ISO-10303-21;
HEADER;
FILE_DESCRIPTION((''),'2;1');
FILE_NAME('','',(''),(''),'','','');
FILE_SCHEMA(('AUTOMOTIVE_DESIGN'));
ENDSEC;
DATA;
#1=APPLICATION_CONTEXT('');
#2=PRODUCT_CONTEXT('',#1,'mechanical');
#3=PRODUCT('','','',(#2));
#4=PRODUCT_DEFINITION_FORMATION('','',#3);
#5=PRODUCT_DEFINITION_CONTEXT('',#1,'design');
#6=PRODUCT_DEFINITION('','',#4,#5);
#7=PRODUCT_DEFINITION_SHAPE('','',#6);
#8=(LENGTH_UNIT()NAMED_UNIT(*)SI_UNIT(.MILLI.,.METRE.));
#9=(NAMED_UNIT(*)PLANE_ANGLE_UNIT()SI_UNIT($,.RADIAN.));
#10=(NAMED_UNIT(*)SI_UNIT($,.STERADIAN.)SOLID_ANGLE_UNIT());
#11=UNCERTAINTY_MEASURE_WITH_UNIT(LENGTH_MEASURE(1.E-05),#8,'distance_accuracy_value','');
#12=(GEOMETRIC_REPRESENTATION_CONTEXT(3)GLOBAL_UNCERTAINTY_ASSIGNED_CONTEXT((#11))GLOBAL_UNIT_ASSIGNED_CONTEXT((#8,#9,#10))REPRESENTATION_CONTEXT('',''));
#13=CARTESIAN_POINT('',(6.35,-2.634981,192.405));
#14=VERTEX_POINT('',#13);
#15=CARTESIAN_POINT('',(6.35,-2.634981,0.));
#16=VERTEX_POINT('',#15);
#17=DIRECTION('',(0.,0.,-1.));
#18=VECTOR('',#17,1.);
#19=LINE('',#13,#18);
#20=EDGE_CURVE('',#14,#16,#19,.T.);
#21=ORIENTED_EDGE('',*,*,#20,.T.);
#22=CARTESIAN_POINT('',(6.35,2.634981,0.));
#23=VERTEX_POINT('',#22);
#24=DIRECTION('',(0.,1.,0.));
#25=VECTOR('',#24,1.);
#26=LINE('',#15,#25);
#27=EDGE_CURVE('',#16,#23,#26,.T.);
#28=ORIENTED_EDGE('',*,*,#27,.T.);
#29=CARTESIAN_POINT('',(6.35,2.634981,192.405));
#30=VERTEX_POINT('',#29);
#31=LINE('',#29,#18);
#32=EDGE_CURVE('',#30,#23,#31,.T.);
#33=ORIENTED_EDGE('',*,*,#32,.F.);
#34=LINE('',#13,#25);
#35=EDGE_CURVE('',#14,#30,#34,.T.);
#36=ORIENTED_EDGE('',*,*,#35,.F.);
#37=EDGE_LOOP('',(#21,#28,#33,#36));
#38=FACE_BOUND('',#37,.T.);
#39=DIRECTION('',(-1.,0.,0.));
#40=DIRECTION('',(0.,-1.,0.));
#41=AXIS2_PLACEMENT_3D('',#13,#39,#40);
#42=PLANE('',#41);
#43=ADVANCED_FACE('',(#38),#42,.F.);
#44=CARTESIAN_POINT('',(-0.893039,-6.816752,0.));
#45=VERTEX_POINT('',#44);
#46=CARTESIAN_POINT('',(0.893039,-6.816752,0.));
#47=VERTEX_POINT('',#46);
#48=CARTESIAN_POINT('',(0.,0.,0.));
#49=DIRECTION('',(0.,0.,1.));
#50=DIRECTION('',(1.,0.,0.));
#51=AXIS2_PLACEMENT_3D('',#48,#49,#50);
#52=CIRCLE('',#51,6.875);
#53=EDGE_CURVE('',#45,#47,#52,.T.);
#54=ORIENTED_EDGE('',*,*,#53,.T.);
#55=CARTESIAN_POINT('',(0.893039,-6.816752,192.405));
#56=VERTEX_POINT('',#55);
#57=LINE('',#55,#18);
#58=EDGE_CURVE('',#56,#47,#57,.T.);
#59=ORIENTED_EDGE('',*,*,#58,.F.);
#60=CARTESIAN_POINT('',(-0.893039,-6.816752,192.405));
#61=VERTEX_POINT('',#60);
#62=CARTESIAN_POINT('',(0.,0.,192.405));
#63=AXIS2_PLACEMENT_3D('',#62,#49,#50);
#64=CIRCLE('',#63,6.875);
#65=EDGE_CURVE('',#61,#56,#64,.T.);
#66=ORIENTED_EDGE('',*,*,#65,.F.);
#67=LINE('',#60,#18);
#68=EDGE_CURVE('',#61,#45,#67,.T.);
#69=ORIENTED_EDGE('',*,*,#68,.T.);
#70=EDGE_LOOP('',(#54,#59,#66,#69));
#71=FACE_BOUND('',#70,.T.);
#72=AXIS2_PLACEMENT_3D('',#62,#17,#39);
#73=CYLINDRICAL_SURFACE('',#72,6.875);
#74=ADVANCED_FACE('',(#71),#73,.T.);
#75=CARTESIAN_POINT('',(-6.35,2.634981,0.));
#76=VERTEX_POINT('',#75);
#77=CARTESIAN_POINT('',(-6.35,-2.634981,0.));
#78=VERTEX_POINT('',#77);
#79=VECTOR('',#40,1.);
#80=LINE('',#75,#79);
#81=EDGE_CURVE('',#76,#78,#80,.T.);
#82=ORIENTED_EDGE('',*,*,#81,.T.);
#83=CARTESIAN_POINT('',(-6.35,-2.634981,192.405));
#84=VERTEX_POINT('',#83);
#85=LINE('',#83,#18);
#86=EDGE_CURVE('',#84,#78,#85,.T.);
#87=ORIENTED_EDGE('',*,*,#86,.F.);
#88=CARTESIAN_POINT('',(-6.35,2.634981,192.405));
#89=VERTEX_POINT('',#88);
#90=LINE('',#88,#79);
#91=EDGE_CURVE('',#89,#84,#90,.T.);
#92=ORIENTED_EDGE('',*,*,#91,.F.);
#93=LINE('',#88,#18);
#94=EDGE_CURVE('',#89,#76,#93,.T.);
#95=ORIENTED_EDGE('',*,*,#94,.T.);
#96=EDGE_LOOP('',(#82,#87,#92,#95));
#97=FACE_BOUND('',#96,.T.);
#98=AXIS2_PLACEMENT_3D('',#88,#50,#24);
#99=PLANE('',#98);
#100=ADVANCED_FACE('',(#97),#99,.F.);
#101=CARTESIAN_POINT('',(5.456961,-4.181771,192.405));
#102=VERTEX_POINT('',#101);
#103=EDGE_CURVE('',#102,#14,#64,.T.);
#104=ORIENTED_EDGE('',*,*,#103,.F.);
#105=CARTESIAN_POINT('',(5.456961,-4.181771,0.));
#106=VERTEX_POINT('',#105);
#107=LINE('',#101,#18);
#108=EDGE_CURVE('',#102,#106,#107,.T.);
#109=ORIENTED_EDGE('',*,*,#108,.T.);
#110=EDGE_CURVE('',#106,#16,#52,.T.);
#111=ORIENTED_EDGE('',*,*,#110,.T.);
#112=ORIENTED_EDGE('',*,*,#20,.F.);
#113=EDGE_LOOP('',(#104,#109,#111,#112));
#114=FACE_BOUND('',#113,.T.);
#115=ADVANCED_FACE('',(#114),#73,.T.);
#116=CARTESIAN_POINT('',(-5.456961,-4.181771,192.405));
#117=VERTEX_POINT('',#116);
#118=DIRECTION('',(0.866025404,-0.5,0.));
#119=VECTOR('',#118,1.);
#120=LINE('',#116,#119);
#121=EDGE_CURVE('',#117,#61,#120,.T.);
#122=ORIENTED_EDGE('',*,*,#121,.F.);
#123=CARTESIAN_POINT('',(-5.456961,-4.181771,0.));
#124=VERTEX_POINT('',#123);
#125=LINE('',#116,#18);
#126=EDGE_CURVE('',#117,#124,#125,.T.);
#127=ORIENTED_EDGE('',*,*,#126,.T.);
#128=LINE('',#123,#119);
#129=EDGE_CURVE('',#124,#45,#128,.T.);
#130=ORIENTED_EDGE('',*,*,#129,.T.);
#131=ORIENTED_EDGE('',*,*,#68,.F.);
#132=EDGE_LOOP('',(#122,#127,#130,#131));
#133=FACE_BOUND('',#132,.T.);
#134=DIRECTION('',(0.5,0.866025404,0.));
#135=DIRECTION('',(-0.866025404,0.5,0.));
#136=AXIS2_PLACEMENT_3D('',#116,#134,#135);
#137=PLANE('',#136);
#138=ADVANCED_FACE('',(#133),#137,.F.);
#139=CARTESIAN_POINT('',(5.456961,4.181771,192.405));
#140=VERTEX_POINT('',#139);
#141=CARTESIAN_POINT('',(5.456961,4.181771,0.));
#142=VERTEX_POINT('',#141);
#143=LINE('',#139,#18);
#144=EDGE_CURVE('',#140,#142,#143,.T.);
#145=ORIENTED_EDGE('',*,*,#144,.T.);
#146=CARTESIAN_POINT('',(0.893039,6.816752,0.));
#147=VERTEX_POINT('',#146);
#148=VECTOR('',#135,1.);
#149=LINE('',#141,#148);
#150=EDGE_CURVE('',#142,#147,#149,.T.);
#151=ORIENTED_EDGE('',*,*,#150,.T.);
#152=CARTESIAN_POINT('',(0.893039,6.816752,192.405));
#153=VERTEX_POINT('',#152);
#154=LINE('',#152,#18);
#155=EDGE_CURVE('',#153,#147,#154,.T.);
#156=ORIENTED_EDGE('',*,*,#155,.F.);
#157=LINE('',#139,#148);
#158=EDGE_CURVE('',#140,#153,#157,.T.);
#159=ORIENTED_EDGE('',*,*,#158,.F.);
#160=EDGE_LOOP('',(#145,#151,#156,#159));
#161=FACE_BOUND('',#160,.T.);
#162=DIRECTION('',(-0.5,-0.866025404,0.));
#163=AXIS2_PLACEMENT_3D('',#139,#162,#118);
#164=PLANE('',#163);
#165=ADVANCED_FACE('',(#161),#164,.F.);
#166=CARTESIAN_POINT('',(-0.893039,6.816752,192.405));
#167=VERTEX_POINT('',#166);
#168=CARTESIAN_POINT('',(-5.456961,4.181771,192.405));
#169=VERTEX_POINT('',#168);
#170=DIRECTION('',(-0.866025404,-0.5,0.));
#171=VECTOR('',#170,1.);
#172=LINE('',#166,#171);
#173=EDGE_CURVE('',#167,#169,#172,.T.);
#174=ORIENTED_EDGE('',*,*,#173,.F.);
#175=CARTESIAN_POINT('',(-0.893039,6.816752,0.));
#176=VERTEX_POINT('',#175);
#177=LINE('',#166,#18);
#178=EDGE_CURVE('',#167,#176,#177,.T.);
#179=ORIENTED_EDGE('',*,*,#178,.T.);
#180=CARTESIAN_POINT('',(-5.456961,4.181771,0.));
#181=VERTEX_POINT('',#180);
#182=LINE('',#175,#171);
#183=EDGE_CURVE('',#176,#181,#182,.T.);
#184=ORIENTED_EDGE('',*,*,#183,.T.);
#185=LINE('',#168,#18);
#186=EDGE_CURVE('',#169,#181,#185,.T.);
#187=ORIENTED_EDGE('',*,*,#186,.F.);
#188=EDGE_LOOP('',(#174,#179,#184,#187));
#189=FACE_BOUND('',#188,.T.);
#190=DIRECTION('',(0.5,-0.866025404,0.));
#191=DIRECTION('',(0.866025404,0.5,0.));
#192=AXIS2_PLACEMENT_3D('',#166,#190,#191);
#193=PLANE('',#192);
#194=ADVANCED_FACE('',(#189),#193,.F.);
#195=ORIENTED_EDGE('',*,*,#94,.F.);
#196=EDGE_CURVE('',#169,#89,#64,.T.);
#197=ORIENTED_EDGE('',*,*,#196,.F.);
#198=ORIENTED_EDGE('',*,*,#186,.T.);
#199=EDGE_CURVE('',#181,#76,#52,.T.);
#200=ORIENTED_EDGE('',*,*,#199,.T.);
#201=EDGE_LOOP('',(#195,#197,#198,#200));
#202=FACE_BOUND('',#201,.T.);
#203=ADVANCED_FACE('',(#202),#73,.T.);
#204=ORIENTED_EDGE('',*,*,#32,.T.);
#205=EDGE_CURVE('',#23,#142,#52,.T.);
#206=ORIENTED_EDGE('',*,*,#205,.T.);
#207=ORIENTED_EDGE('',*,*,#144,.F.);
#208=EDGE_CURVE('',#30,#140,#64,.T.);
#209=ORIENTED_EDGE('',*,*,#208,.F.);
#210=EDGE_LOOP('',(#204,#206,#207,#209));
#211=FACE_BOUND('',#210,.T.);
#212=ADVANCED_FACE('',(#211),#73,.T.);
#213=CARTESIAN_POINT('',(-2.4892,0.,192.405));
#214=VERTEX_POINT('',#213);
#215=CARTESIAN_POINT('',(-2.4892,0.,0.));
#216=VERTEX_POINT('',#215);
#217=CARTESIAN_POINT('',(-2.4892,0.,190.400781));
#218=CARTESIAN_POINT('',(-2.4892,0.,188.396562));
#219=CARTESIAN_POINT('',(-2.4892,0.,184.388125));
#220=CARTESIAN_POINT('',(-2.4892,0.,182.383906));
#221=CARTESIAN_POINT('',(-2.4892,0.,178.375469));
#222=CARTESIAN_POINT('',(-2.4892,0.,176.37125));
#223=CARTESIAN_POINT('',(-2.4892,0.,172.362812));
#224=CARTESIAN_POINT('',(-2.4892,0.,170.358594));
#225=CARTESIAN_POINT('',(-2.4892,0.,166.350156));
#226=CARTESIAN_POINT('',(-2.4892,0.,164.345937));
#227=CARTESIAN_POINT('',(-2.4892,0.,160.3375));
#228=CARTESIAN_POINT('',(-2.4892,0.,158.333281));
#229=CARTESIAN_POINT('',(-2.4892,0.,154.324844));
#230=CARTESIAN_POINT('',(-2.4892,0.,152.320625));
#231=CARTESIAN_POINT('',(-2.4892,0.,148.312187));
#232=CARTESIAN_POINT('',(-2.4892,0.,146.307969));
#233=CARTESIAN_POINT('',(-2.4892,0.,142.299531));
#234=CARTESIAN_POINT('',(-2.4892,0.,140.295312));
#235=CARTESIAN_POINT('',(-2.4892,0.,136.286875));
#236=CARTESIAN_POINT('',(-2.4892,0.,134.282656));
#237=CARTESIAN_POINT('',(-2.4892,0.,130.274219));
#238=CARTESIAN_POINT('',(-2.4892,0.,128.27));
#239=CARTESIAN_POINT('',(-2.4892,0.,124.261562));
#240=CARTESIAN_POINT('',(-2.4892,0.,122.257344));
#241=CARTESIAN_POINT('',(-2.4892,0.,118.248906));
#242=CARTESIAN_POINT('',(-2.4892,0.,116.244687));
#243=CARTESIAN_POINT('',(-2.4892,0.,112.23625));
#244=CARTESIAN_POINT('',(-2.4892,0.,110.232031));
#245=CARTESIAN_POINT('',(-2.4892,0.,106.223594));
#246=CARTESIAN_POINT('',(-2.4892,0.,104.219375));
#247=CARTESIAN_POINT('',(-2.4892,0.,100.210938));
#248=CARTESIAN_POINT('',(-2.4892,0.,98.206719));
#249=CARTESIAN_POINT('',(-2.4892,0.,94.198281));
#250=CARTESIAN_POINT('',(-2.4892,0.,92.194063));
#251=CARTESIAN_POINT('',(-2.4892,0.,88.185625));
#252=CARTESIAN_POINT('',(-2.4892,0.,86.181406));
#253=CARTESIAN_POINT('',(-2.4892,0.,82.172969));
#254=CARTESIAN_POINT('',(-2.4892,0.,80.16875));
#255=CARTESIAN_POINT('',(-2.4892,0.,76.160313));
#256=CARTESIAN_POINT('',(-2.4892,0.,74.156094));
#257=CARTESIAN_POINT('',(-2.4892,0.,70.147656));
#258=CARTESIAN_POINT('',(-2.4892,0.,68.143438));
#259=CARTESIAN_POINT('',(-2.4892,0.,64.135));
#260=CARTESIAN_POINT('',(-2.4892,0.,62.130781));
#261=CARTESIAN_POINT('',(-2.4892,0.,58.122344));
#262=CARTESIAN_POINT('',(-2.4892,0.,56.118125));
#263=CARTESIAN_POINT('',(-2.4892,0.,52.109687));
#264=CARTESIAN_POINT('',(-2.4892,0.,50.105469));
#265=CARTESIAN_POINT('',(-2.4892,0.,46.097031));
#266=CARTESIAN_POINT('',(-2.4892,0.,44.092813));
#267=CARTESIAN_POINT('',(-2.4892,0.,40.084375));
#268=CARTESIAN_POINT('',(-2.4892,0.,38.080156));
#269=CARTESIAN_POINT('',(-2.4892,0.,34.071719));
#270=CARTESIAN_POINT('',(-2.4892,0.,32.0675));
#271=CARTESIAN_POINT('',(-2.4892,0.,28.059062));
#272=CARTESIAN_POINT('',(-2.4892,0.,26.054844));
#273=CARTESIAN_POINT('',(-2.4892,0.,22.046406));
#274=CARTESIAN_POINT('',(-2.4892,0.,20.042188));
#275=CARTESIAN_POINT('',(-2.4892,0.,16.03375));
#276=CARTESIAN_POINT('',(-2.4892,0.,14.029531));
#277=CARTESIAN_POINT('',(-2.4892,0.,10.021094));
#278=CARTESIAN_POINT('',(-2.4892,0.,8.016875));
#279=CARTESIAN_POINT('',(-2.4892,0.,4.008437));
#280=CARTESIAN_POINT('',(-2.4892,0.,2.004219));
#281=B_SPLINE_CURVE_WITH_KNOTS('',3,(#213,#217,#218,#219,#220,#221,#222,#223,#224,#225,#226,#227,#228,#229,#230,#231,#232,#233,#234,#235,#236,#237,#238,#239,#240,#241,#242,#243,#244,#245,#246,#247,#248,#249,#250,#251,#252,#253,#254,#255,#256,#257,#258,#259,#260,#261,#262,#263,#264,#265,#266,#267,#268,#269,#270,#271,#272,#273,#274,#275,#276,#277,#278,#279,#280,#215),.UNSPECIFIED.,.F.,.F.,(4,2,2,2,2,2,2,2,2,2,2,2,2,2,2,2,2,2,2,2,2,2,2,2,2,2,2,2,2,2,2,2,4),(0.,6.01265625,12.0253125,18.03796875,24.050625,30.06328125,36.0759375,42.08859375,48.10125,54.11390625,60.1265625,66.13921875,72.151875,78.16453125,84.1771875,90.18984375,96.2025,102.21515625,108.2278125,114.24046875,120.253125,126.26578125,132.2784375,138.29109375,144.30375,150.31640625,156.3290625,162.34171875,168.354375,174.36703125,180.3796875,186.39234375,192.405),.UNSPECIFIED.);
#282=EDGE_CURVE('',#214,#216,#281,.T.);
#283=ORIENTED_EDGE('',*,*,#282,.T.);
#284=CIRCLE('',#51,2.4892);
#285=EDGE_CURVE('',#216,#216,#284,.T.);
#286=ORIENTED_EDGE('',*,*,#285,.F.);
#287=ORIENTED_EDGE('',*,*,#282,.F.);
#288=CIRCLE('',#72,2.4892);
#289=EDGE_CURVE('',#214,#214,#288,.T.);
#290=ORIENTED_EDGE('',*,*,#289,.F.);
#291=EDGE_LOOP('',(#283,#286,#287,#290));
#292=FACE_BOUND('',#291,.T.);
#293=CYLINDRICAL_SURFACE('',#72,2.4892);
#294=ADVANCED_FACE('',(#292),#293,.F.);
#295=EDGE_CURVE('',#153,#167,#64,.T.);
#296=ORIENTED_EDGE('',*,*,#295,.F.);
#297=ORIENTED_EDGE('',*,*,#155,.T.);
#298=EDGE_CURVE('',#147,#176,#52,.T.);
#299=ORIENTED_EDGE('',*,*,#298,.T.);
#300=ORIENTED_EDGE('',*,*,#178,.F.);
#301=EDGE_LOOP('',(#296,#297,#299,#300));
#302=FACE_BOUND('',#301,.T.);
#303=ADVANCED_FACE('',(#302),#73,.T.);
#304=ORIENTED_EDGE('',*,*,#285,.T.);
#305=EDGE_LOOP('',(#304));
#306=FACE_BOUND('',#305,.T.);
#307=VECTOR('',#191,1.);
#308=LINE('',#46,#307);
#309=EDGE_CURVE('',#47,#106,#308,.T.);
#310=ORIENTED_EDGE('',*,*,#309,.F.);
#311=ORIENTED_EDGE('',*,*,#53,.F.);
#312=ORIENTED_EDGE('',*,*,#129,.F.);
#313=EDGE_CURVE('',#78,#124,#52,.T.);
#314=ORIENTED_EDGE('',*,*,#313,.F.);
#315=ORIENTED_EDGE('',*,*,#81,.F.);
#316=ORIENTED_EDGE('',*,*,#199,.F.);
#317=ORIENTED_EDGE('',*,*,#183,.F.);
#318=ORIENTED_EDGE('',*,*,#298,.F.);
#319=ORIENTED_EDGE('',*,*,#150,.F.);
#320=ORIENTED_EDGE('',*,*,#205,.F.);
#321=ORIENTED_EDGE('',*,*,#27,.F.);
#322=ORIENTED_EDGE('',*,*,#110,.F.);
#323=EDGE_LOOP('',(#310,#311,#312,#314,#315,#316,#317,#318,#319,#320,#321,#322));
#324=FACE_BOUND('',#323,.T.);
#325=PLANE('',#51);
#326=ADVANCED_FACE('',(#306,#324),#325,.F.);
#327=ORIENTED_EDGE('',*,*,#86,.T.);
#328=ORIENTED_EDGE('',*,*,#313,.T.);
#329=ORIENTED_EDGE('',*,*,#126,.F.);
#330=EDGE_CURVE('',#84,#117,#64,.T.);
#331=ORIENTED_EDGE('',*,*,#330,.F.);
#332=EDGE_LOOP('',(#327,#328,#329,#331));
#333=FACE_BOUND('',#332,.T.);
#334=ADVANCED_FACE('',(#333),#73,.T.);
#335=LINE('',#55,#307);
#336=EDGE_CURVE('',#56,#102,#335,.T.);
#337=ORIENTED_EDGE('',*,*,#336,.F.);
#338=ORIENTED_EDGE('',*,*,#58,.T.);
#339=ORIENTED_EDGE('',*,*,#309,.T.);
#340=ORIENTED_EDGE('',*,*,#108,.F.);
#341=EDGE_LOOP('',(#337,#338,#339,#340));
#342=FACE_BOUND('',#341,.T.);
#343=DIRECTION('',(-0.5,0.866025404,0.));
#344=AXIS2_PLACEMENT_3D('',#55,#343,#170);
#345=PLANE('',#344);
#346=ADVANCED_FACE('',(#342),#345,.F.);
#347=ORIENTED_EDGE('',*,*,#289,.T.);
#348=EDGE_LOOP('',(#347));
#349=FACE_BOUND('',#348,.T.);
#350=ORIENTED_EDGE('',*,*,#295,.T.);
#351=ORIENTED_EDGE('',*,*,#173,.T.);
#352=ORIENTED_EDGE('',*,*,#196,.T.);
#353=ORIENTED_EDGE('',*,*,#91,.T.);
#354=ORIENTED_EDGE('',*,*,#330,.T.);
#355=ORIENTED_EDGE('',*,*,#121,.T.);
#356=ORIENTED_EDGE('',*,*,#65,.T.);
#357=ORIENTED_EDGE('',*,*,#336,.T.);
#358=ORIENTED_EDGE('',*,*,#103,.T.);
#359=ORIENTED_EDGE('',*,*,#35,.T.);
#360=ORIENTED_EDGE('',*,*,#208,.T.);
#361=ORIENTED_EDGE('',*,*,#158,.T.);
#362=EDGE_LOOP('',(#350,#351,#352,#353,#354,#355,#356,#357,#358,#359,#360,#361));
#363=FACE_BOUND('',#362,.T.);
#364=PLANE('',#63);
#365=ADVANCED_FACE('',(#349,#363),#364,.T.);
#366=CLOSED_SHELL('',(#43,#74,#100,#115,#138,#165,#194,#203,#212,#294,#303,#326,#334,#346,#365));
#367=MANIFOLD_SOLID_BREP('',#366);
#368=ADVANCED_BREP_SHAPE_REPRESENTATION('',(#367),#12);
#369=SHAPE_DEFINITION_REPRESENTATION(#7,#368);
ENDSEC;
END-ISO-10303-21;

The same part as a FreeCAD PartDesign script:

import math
import FreeCAD as App
import Part
import Sketcher
Q = App.Units.Quantity

doc = App.newDocument("Part")
params = doc.addObject("Spreadsheet::Sheet", "Params")
for row, (alias, value) in enumerate([
    ("pad1_length", "7.575 in"),
    ("sketch2_diameter", "0.196 in"),
], start=1):
    params.set(f"A{row}", alias)
    params.set(f"B{row}", "=" + value)
    params.setAlias(f"B{row}", alias)

body = doc.addObject("PartDesign::Body", "Body")

# Sketch on XY plane
sketch1 = body.newObject("Sketcher::SketchObject", "Sketch")
sketch1.AttachmentSupport = (doc.getObject("XY_Plane"), [""])
sketch1.MapMode = "FlatFace"
sketch1.addGeometry(Part.LineSegment(App.Vector(-0.9, 6.8, 0), App.Vector(-5.5, 4.2, 0)), False)
sketch1.addGeometry(Part.ArcOfCircle(Part.Circle(App.Vector(0, 0, 0), App.Vector(0, 0, 1), 6.9), math.radians(142.54), math.radians(157.46)), False)
sketch1.addGeometry(Part.LineSegment(App.Vector(-6.3, 2.6, 0), App.Vector(-6.3, -2.6, 0)), False)
sketch1.addGeometry(Part.ArcOfCircle(Part.Circle(App.Vector(0, 0, 0), App.Vector(0, 0, 1), 6.9), math.radians(-157.46), math.radians(-142.54)), False)
sketch1.addGeometry(Part.LineSegment(App.Vector(-5.5, -4.2, 0), App.Vector(-0.9, -6.8, 0)), False)
sketch1.addGeometry(Part.ArcOfCircle(Part.Circle(App.Vector(0, 0, 0), App.Vector(0, 0, 1), 6.9), math.radians(-97.46), math.radians(-82.54)), False)
sketch1.addGeometry(Part.LineSegment(App.Vector(0.9, -6.8, 0), App.Vector(5.5, -4.2, 0)), False)
sketch1.addGeometry(Part.ArcOfCircle(Part.Circle(App.Vector(0, 0, 0), App.Vector(0, 0, 1), 6.9), math.radians(-37.46), math.radians(-22.54)), False)
sketch1.addGeometry(Part.LineSegment(App.Vector(6.3, -2.6, 0), App.Vector(6.3, 2.6, 0)), False)
sketch1.addGeometry(Part.ArcOfCircle(Part.Circle(App.Vector(0, 0, 0), App.Vector(0, 0, 1), 6.9), math.radians(22.54), math.radians(37.46)), False)
sketch1.addGeometry(Part.LineSegment(App.Vector(5.5, 4.2, 0), App.Vector(0.9, 6.8, 0)), False)
sketch1.addGeometry(Part.ArcOfCircle(Part.Circle(App.Vector(0, 0, 0), App.Vector(0, 0, 1), 6.9), math.radians(82.54), math.radians(97.46)), False)
sketch1.addConstraint(Sketcher.Constraint("Coincident", 0, 2, 1, 1))
sketch1.addConstraint(Sketcher.Constraint("Coincident", 1, 2, 2, 1))
sketch1.addConstraint(Sketcher.Constraint("Coincident", 2, 2, 3, 1))
sketch1.addConstraint(Sketcher.Constraint("Coincident", 3, 2, 4, 1))
sketch1.addConstraint(Sketcher.Constraint("Coincident", 4, 2, 5, 1))
sketch1.addConstraint(Sketcher.Constraint("Coincident", 5, 2, 6, 1))
sketch1.addConstraint(Sketcher.Constraint("Coincident", 6, 2, 7, 1))
sketch1.addConstraint(Sketcher.Constraint("Coincident", 7, 2, 8, 1))
sketch1.addConstraint(Sketcher.Constraint("Coincident", 8, 2, 9, 1))
sketch1.addConstraint(Sketcher.Constraint("Coincident", 9, 2, 10, 1))
sketch1.addConstraint(Sketcher.Constraint("Coincident", 10, 2, 11, 1))
sketch1.addConstraint(Sketcher.Constraint("Coincident", 11, 2, 0, 1))
sketch1.addConstraint(Sketcher.Constraint("Vertical", 2))
sketch1.addConstraint(Sketcher.Constraint("Vertical", 8))
sketch1.addConstraint(Sketcher.Constraint("Coincident", 1, 3, -1, 1))
sketch1.addConstraint(Sketcher.Constraint("Coincident", 3, 3, -1, 1))
sketch1.addConstraint(Sketcher.Constraint("Coincident", 5, 3, -1, 1))
sketch1.addConstraint(Sketcher.Constraint("Coincident", 7, 3, -1, 1))
sketch1.addConstraint(Sketcher.Constraint("Coincident", 9, 3, -1, 1))
sketch1.addConstraint(Sketcher.Constraint("Coincident", 11, 3, -1, 1))
sketch1.addConstraint(Sketcher.Constraint("Equal", 1, 3))
sketch1.addConstraint(Sketcher.Constraint("Equal", 3, 5))
sketch1.addConstraint(Sketcher.Constraint("Equal", 5, 7))
sketch1.addConstraint(Sketcher.Constraint("Equal", 7, 9))
sketch1.addConstraint(Sketcher.Constraint("Equal", 9, 11))
sketch1.addConstraint(Sketcher.Constraint("Parallel", 0, 6))
sketch1.addConstraint(Sketcher.Constraint("Parallel", 4, 10))
sketch1.addConstraint(Sketcher.Constraint("Horizontal", 4, 2, 5, 2))
sketch1.addConstraint(Sketcher.Constraint("Horizontal", 3, 2, 6, 2))
sketch1.addConstraint(Sketcher.Constraint("Horizontal", 2, 2, 7, 2))
sketch1.addConstraint(Sketcher.Constraint("Horizontal", 0, 2, 9, 2))
sketch1.addConstraint(Sketcher.Constraint("Vertical", 0, 2, 3, 2))
sketch1.addConstraint(Sketcher.Constraint("Angle", 0, Q("-150 deg")))
sketch1.addConstraint(Sketcher.Constraint("DistanceX", 1, 2, -1, 1, Q("0.25 in")))
sketch1.addConstraint(Sketcher.Constraint("Radius", 1, 6.875))
sketch1.addConstraint(Sketcher.Constraint("DistanceX", 3, 2, 5, 2, Q("0.25 in")))
pad1 = body.newObject("PartDesign::Pad", "Pad")
pad1.Profile = sketch1
pad1.setExpression("Length", "Params.pad1_length")

# Sketch on XY plane
sketch2 = body.newObject("Sketcher::SketchObject", "Sketch001")
sketch2.AttachmentSupport = (doc.getObject("XY_Plane"), [""])
sketch2.MapMode = "FlatFace"
sketch2.addGeometry(Part.Circle(App.Vector(0, 0, 0), App.Vector(0, 0, 1), 2.5), False)
sketch2.addConstraint(Sketcher.Constraint("Coincident", 0, 3, -1, 1))
sketch2.addConstraint(Sketcher.Constraint("Diameter", 0, Q("0.196 in")))
sketch2.setExpression("Constraints[1]", "Params.sketch2_diameter")
pocket1 = body.newObject("PartDesign::Pocket", "Pocket")
pocket1.Profile = sketch2
pocket1.Type = "ThroughAll"
pocket1.Midplane = True

doc.recompute()
